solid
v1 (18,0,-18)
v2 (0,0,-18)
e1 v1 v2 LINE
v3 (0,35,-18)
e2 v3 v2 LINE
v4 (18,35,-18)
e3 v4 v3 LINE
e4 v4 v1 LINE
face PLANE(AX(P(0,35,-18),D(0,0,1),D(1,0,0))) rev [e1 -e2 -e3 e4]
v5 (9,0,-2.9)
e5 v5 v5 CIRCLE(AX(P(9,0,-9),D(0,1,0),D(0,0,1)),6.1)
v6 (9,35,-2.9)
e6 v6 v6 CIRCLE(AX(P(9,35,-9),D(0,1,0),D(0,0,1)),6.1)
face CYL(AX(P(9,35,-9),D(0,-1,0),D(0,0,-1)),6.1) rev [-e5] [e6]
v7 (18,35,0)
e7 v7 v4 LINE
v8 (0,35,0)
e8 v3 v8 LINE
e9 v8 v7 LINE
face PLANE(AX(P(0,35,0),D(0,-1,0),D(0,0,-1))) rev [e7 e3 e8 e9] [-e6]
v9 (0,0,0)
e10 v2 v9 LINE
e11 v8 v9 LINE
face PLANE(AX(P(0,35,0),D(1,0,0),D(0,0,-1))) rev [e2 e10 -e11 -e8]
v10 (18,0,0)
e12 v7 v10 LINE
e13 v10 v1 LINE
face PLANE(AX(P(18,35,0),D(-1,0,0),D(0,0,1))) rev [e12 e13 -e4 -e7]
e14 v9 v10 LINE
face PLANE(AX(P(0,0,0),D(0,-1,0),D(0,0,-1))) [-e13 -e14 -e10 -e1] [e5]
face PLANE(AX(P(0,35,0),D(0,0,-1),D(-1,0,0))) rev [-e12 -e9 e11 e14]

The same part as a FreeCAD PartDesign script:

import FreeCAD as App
import Part
import Sketcher

V = App.Vector


def add_polygon(sketch, points):
    """Adds a closed chain of lines whose ends are joined by coincident constraints."""
    first, n = sketch.GeometryCount, len(points)
    for a, b in zip(points, points[1:] + points[:1]):
        sketch.addGeometry(Part.LineSegment(App.Vector(*a, 0), App.Vector(*b, 0)), False)
    for i in range(n):
        sketch.addConstraint(Sketcher.Constraint("Coincident", first + i, 2, first + (i + 1) % n, 1))

doc = App.newDocument("Part")
params = doc.addObject("Spreadsheet::Sheet", "Params")
for row, (alias, value) in enumerate([
    ("sketch1_diameter", "12.2 mm"),
    ("sketch1_width", "18 mm"),
    ("pad1_length", "35 mm"),
], start=1):
    params.set(f"A{row}", alias)
    params.set(f"B{row}", "=" + value)
    params.setAlias(f"B{row}", alias)

body = doc.addObject("PartDesign::Body", "Body")

sketch1 = body.newObject("Sketcher::SketchObject", "Sketch")
sketch1.AttachmentSupport = (doc.getObject("XZ_Plane"), [""])
sketch1.MapMode = "FlatFace"
add_polygon(sketch1, [(0, -18), (0, 0), (18, 0), (18, -18)])
sketch1.addGeometry(Part.Circle(V(9, -9, 0), V(0, 0, 1), 6.1), False)
sketch1.addConstraint([
    Sketcher.Constraint("Vertical", 0),
    Sketcher.Constraint("Horizontal", 1),
    Sketcher.Constraint("Vertical", 2),
    Sketcher.Constraint("Horizontal", 3),
    Sketcher.Constraint("Coincident", 0, 2, -1, 1),
    Sketcher.Constraint("Equal", 3, 0),
    Sketcher.Constraint("Diameter", 4, 12.2),
    Sketcher.Constraint("DistanceX", 1, 1, 1, 2, 18.0),
    Sketcher.Constraint("DistanceX", -1, 1, 4, 3, 9.0),
    Sketcher.Constraint("DistanceY", 4, 3, -1, 1, 9.0),
])
sketch1.setExpression("Constraints[10]", "Params.sketch1_diameter")
sketch1.setExpression("Constraints[11]", "Params.sketch1_width")
pad1 = body.newObject("PartDesign::Pad", "Pad")
pad1.Profile = sketch1
pad1.setExpression("Length", "Params.pad1_length")
pad1.Reversed = True

doc.recompute()
